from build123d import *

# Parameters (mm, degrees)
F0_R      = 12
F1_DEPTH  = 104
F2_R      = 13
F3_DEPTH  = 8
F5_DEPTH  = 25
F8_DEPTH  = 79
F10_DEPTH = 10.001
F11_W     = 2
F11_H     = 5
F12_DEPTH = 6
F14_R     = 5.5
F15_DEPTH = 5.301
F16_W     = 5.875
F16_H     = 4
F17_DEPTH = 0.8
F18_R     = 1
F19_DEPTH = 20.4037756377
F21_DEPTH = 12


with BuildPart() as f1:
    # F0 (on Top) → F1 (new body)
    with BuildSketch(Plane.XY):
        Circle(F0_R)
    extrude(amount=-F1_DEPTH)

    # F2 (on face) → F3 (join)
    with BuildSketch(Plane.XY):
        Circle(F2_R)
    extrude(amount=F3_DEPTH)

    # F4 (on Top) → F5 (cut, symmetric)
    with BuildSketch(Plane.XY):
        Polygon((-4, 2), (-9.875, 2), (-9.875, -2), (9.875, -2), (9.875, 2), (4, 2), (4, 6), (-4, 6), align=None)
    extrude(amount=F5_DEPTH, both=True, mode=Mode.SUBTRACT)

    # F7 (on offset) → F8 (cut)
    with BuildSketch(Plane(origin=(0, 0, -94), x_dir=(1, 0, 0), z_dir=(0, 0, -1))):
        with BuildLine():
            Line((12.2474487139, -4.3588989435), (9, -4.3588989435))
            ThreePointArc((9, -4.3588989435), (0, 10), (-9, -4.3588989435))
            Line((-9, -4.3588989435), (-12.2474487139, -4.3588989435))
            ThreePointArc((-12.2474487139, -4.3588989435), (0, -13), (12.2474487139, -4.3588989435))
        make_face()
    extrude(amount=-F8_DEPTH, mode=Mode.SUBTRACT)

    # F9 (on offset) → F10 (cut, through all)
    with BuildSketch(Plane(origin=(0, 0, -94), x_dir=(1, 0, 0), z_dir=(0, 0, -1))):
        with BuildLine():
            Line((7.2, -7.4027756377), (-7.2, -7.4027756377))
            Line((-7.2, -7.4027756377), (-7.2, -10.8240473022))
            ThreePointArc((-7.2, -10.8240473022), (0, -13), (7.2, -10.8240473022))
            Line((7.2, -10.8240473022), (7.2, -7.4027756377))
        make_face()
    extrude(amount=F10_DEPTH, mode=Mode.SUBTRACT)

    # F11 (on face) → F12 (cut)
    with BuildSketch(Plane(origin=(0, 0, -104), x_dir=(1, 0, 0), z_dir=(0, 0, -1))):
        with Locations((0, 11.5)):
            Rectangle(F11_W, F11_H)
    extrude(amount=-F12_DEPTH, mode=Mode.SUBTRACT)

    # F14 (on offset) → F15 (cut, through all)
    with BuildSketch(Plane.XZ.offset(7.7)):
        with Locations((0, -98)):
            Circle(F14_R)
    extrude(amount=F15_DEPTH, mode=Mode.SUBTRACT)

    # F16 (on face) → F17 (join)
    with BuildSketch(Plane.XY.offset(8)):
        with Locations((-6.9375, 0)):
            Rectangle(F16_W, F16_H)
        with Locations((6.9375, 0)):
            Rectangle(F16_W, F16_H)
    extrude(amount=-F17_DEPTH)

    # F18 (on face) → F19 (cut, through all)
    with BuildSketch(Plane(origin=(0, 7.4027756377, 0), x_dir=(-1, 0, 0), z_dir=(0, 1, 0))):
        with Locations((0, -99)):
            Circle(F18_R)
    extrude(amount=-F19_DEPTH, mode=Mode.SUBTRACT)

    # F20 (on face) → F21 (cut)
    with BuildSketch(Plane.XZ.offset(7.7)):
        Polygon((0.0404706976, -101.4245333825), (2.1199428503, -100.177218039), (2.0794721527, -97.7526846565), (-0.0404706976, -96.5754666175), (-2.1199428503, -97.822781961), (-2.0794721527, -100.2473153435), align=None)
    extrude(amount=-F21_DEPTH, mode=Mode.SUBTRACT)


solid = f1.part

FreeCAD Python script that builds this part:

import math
import FreeCAD as App
import Part
import Sketcher

V = App.Vector
Q = App.Units.Quantity

doc = App.newDocument("Part")
params = doc.addObject("Spreadsheet::Sheet", "Params")
for row, (alias, value) in enumerate([
    ("sketch1_diameter", "24 mm"),
    ("pad1_length", "104 mm"),
    ("sketch2_diameter", "26 mm"),
    ("pad2_length", "8 mm"),
    ("sketch3_width", "8 mm"),
    ("sketch3_height", "4 mm"),
    ("sketch3_width2", "19.75 mm"),
    ("pocket1_length", "50 mm"),
    ("sketch4_radius", "10 mm"),
    ("sketch4_radius2", "13 mm"),
    ("pocket2_length", "79 mm"),
    ("sketch5_radius", "13 mm"),
    ("sketch5_width", "14.4 mm"),
    ("sketch6_width", "2 mm"),
    ("sketch6_height", "5 mm"),
    ("pocket4_length", "6 mm"),
    ("sketch7_diameter", "11 mm"),
    ("sketch8_height", "4 mm"),
    ("pad3_length", "0.8 mm"),
    ("sketch9_diameter", "2 mm"),
    ("pocket7_length", "12 mm"),
], start=1):
    params.set(f"A{row}", alias)
    params.set(f"B{row}", "=" + value)
    params.setAlias(f"B{row}", alias)

body = doc.addObject("PartDesign::Body", "Body")

# Sketch on XY plane
sketch1 = body.newObject("Sketcher::SketchObject", "Sketch")
sketch1.AttachmentSupport = (doc.getObject("XY_Plane"), [""])
sketch1.MapMode = "FlatFace"
sketch1.addGeometry(Part.Circle(V(0, 0, 0), V(0, 0, 1), 12), False)
sketch1.addConstraint([
    Sketcher.Constraint("Coincident", 0, 3, -1, 1),
    Sketcher.Constraint("Diameter", 0, Q("24 mm")),
])
sketch1.setExpression("Constraints[1]", "Params.sketch1_diameter")
pad1 = body.newObject("PartDesign::Pad", "Pad")
pad1.Profile = sketch1
pad1.setExpression("Length", "Params.pad1_length")
pad1.Reversed = True

# Sketch on XY plane
sketch2 = body.newObject("Sketcher::SketchObject", "Sketch001")
sketch2.AttachmentSupport = (doc.getObject("XY_Plane"), [""])
sketch2.MapMode = "FlatFace"
sketch2.addGeometry(Part.Circle(V(0, 0, 0), V(0, 0, 1), 13), False)
sketch2.addConstraint([
    Sketcher.Constraint("Coincident", 0, 3, -1, 1),
    Sketcher.Constraint("Diameter", 0, Q("26 mm")),
])
sketch2.setExpression("Constraints[1]", "Params.sketch2_diameter")
pad2 = body.newObject("PartDesign::Pad", "Pad001")
pad2.Profile = sketch2
pad2.setExpression("Length", "Params.pad2_length")

# Sketch on XY plane
sketch3 = body.newObject("Sketcher::SketchObject", "Sketch002")
sketch3.AttachmentSupport = (doc.getObject("XY_Plane"), [""])
sketch3.MapMode = "FlatFace"
sketch3.addGeometry([
    Part.LineSegment(V(-4, 2, 0), V(-9.9, 2, 0)),  # 0
    Part.LineSegment(V(-9.9, 2, 0), V(-9.9, -2, 0)),  # 1
    Part.LineSegment(V(-9.9, -2, 0), V(9.9, -2, 0)),  # 2
    Part.LineSegment(V(9.9, -2, 0), V(9.9, 2, 0)),  # 3
    Part.LineSegment(V(9.9, 2, 0), V(4, 2, 0)),  # 4
    Part.LineSegment(V(4, 2, 0), V(4, 6, 0)),  # 5
    Part.LineSegment(V(4, 6, 0), V(-4, 6, 0)),  # 6
    Part.LineSegment(V(-4, 6, 0), V(-4, 2, 0)),  # 7
], False)
sketch3.addConstraint([
    Sketcher.Constraint("Coincident", 0, 2, 1, 1),
    Sketcher.Constraint("Coincident", 1, 2, 2, 1),
    Sketcher.Constraint("Coincident", 2, 2, 3, 1),
    Sketcher.Constraint("Coincident", 3, 2, 4, 1),
    Sketcher.Constraint("Coincident", 4, 2, 5, 1),
    Sketcher.Constraint("Coincident", 5, 2, 6, 1),
    Sketcher.Constraint("Coincident", 6, 2, 7, 1),
    Sketcher.Constraint("Coincident", 7, 2, 0, 1),
    Sketcher.Constraint("Horizontal", 0),
    Sketcher.Constraint("Vertical", 1),
    Sketcher.Constraint("Horizontal", 2),
    Sketcher.Constraint("Vertical", 3),
    Sketcher.Constraint("Horizontal", 4),
    Sketcher.Constraint("Vertical", 5),
    Sketcher.Constraint("Horizontal", 6),
    Sketcher.Constraint("Vertical", 7),
    Sketcher.Constraint("Symmetric", 0, 2, 2, 2, -1, 1),
    Sketcher.Constraint("Symmetric", 4, 2, 7, 2, -2),
    Sketcher.Constraint("Equal", 3, 5),
    Sketcher.Constraint("DistanceX", 6, 2, 6, 1, Q("8 mm")),
    Sketcher.Constraint("DistanceY", 1, 2, 1, 1, Q("4 mm")),
    Sketcher.Constraint("DistanceX", 2, 1, 2, 2, Q("19.75 mm")),
])
sketch3.setExpression("Constraints[19]", "Params.sketch3_width")
sketch3.setExpression("Constraints[20]", "Params.sketch3_height")
sketch3.setExpression("Constraints[21]", "Params.sketch3_width2")
pocket1 = body.newObject("PartDesign::Pocket", "Pocket")
pocket1.Profile = sketch3
pocket1.setExpression("Length", "Params.pocket1_length")
pocket1.Midplane = True

# Sketch on XY plane
sketch4 = body.newObject("Sketcher::SketchObject", "Sketch003")
sketch4.AttachmentSupport = (doc.getObject("XY_Plane"), [""])
sketch4.MapMode = "FlatFace"
sketch4.AttachmentOffset = App.Placement(V(0, 0, -94), App.Rotation())
sketch4.addGeometry([
    Part.LineSegment(V(12.2, 4.4, 0), V(9, 4.4, 0)),
    Part.ArcOfCircle(Part.Circle(V(0, 0, 0), V(0, 0, 1), 10), math.radians(154), math.radians(386)),
    Part.LineSegment(V(-9, 4.4, 0), V(-12.2, 4.4, 0)),
    Part.ArcOfCircle(Part.Circle(V(0, 0, 0), V(0, 0, 1), 13), math.radians(20), math.radians(160)),
], False)
sketch4.addConstraint([
    Sketcher.Constraint("Coincident", 0, 2, 1, 2),
    Sketcher.Constraint("Coincident", 1, 1, 2, 1),
    Sketcher.Constraint("Coincident", 2, 2, 3, 2),
    Sketcher.Constraint("Coincident", 3, 1, 0, 1),
    Sketcher.Constraint("Horizontal", 0),
    Sketcher.Constraint("Horizontal", 2),
    Sketcher.Constraint("Coincident", 1, 3, -1, 1),
    Sketcher.Constraint("Coincident", 3, 3, -1, 1),
    Sketcher.Constraint("Horizontal", 0, 2, 1, 1),
    Sketcher.Constraint("Radius", 1, Q("10 mm")),
    Sketcher.Constraint("Radius", 3, Q("13 mm")),
    Sketcher.Constraint("DistanceX", -1, 1, 0, 2, Q("9 mm")),
])
sketch4.setExpression("Constraints[9]", "Params.sketch4_radius")
sketch4.setExpression("Constraints[10]", "Params.sketch4_radius2")
pocket2 = body.newObject("PartDesign::Pocket", "Pocket001")
pocket2.Profile = sketch4
pocket2.setExpression("Length", "Params.pocket2_length")
pocket2.Reversed = True

# Sketch on XY plane
sketch5 = body.newObject("Sketcher::SketchObject", "Sketch004")
sketch5.AttachmentSupport = (doc.getObject("XY_Plane"), [""])
sketch5.MapMode = "FlatFace"
sketch5.AttachmentOffset = App.Placement(V(0, 0, -94), App.Rotation())
sketch5.addGeometry([
    Part.LineSegment(V(7.2, 7.4, 0), V(-7.2, 7.4, 0)),
    Part.LineSegment(V(-7.2, 7.4, 0), V(-7.2, 10.8, 0)),
    Part.ArcOfCircle(Part.Circle(V(0, 0, 0), V(0, 0, 1), 13), math.radians(56), math.radians(124)),
    Part.LineSegment(V(7.2, 10.8, 0), V(7.2, 7.4, 0)),
], False)
sketch5.addConstraint([
    Sketcher.Constraint("Coincident", 0, 2, 1, 1),
    Sketcher.Constraint("Coincident", 1, 2, 2, 2),
    Sketcher.Constraint("Coincident", 2, 1, 3, 1),
    Sketcher.Constraint("Coincident", 3, 2, 0, 1),
    Sketcher.Constraint("Horizontal", 0),
    Sketcher.Constraint("Vertical", 1),
    Sketcher.Constraint("Vertical", 3),
    Sketcher.Constraint("Coincident", 2, 3, -1, 1),
    Sketcher.Constraint("Horizontal", 1, 2, 2, 1),
    Sketcher.Constraint("Radius", 2, Q("13 mm")),
    Sketcher.Constraint("DistanceX", 0, 2, 0, 1, Q("14.4 mm")),
    Sketcher.Constraint("DistanceY", 1, 1, 1, 2, Q("3.421272 mm")),
])
sketch5.setExpression("Constraints[9]", "Params.sketch5_radius")
sketch5.setExpression("Constraints[10]", "Params.sketch5_width")
pocket3 = body.newObject("PartDesign::Pocket", "Pocket002")
pocket3.Profile = sketch5
pocket3.Type = "ThroughAll"

# Sketch on XY plane
sketch6 = body.newObject("Sketcher::SketchObject", "Sketch005")
sketch6.AttachmentSupport = (doc.getObject("XY_Plane"), [""])
sketch6.MapMode = "FlatFace"
sketch6.AttachmentOffset = App.Placement(V(0, 0, -104), App.Rotation())
sketch6.addGeometry([
    Part.LineSegment(V(-1, -14, 0), V(-1, -9, 0)),
    Part.LineSegment(V(-1, -9, 0), V(1, -9, 0)),
    Part.LineSegment(V(1, -9, 0), V(1, -14, 0)),
    Part.LineSegment(V(1, -14, 0), V(-1, -14, 0)),
], False)
sketch6.addConstraint([
    Sketcher.Constraint("Coincident", 0, 2, 1, 1),
    Sketcher.Constraint("Coincident", 1, 2, 2, 1),
    Sketcher.Constraint("Coincident", 2, 2, 3, 1),
    Sketcher.Constraint("Coincident", 3, 2, 0, 1),
    Sketcher.Constraint("Vertical", 0),
    Sketcher.Constraint("Horizontal", 1),
    Sketcher.Constraint("Vertical", 2),
    Sketcher.Constraint("Horizontal", 3),
    Sketcher.Constraint("DistanceX", 1, 1, 1, 2, Q("2 mm")),
    Sketcher.Constraint("DistanceY", 0, 1, 0, 2, Q("5 mm")),
    Sketcher.Constraint("DistanceX", 0, 2, -1, 1, Q("1 mm")),
    Sketcher.Constraint("DistanceY", 0, 2, -1, 1, Q("9 mm")),
])
sketch6.setExpression("Constraints[8]", "Params.sketch6_width")
sketch6.setExpression("Constraints[9]", "Params.sketch6_height")
pocket4 = body.newObject("PartDesign::Pocket", "Pocket003")
pocket4.Profile = sketch6
pocket4.setExpression("Length", "Params.pocket4_length")
pocket4.Reversed = True

# Sketch on XZ plane
sketch7 = body.newObject("Sketcher::SketchObject", "Sketch006")
sketch7.AttachmentSupport = (doc.getObject("XZ_Plane"), [""])
sketch7.MapMode = "FlatFace"
sketch7.AttachmentOffset = App.Placement(V(0, 0, 7.7), App.Rotation())
sketch7.addGeometry(Part.Circle(V(0, -98, 0), V(0, 0, 1), 6), False)
sketch7.addConstraint([
    Sketcher.Constraint("PointOnObject", 0, 3, -2),
    Sketcher.Constraint("Diameter", 0, Q("11 mm")),
    Sketcher.Constraint("DistanceY", 0, 3, -1, 1, Q("98 mm")),
])
sketch7.setExpression("Constraints[1]", "Params.sketch7_diameter")
pocket5 = body.newObject("PartDesign::Pocket", "Pocket004")
pocket5.Profile = sketch7
pocket5.Type = "ThroughAll"
pocket5.Reversed = True

# Sketch on XY plane
sketch8 = body.newObject("Sketcher::SketchObject", "Sketch007")
sketch8.AttachmentSupport = (doc.getObject("XY_Plane"), [""])
sketch8.MapMode = "FlatFace"
sketch8.AttachmentOffset = App.Placement(V(0, 0, 8), App.Rotation())
sketch8.addGeometry([
    Part.LineSegment(V(-9.9, 2, 0), V(-9.9, -2, 0)),  # 0
    Part.LineSegment(V(-9.9, -2, 0), V(-4, -2, 0)),  # 1
    Part.LineSegment(V(-4, -2, 0), V(-4, 2, 0)),  # 2
    Part.LineSegment(V(-4, 2, 0), V(-9.9, 2, 0)),  # 3
    Part.LineSegment(V(4, 2, 0), V(4, -2, 0)),  # 4
    Part.LineSegment(V(4, -2, 0), V(9.9, -2, 0)),  # 5
    Part.LineSegment(V(9.9, -2, 0), V(9.9, 2, 0)),  # 6
    Part.LineSegment(V(9.9, 2, 0), V(4, 2, 0)),  # 7
], False)
sketch8.addConstraint([
    Sketcher.Constraint("Coincident", 0, 2, 1, 1),
    Sketcher.Constraint("Coincident", 1, 2, 2, 1),
    Sketcher.Constraint("Coincident", 2, 2, 3, 1),
    Sketcher.Constraint("Coincident", 3, 2, 0, 1),
    Sketcher.Constraint("Coincident", 4, 2, 5, 1),
    Sketcher.Constraint("Coincident", 5, 2, 6, 1),
    Sketcher.Constraint("Coincident", 6, 2, 7, 1),
    Sketcher.Constraint("Coincident", 7, 2, 4, 1),
    Sketcher.Constraint("Vertical", 0),
    Sketcher.Constraint("Horizontal", 1),
    Sketcher.Constraint("Vertical", 2),
    Sketcher.Constraint("Horizontal", 3),
    Sketcher.Constraint("Vertical", 4),
    Sketcher.Constraint("Horizontal", 5),
    Sketcher.Constraint("Vertical", 6),
    Sketcher.Constraint("Horizontal", 7),
    Sketcher.Constraint("Symmetric", 2, 2, 4, 2, -1, 1),
    Sketcher.Constraint("Symmetric", 0, 2, 6, 2, -1, 1),
    Sketcher.Constraint("Horizontal", 1, 2, 4, 2),
    Sketcher.Constraint("DistanceY", 0, 2, 0, 1, Q("4 mm")),
    Sketcher.Constraint("DistanceX", 1, 2, -1, 1, Q("4 mm")),
    Sketcher.Constraint("DistanceX", 1, 1, 1, 2, Q("5.875 mm")),
])
sketch8.setExpression("Constraints[19]", "Params.sketch8_height")
pad3 = body.newObject("PartDesign::Pad", "Pad002")
pad3.Profile = sketch8
pad3.setExpression("Length", "Params.pad3_length")
pad3.Reversed = True

# Sketch on XZ plane
sketch9 = body.newObject("Sketcher::SketchObject", "Sketch008")
sketch9.AttachmentSupport = (doc.getObject("XZ_Plane"), [""])
sketch9.MapMode = "FlatFace"
sketch9.AttachmentOffset = App.Placement(V(0, 0, -7.402776), App.Rotation())
sketch9.addGeometry(Part.Circle(V(0, -99, 0), V(0, 0, 1), 1), False)
sketch9.addConstraint([
    Sketcher.Constraint("PointOnObject", 0, 3, -2),
    Sketcher.Constraint("Diameter", 0, Q("2 mm")),
    Sketcher.Constraint("DistanceY", 0, 3, -1, 1, Q("99 mm")),
])
sketch9.setExpression("Constraints[1]", "Params.sketch9_diameter")
pocket6 = body.newObject("PartDesign::Pocket", "Pocket005")
pocket6.Profile = sketch9
pocket6.Type = "ThroughAll"
pocket6.Reversed = True

# Sketch on XZ plane
sketch10 = body.newObject("Sketcher::SketchObject", "Sketch009")
sketch10.AttachmentSupport = (doc.getObject("XZ_Plane"), [""])
sketch10.MapMode = "FlatFace"
sketch10.AttachmentOffset = App.Placement(V(0, 0, 7.7), App.Rotation())
sketch10.addGeometry([
    Part.LineSegment(V(0, -101.4, 0), V(2.1, -100.2, 0)),  # 0
    Part.LineSegment(V(2.1, -100.2, 0), V(2.1, -97.8, 0)),  # 1
    Part.LineSegment(V(2.1, -97.8, 0), V(0, -96.6, 0)),  # 2
    Part.LineSegment(V(0, -96.6, 0), V(-2.1, -97.8, 0)),  # 3
    Part.LineSegment(V(-2.1, -97.8, 0), V(-2.1, -100.2, 0)),  # 4
    Part.LineSegment(V(-2.1, -100.2, 0), V(0, -101.4, 0)),  # 5
], False)
sketch10.addConstraint([
    Sketcher.Constraint("Coincident", 0, 2, 1, 1),
    Sketcher.Constraint("Coincident", 1, 2, 2, 1),
    Sketcher.Constraint("Coincident", 2, 2, 3, 1),
    Sketcher.Constraint("Coincident", 3, 2, 4, 1),
    Sketcher.Constraint("Coincident", 4, 2, 5, 1),
    Sketcher.Constraint("Coincident", 5, 2, 0, 1),
    Sketcher.Constraint("Parallel", 0, 3),
    Sketcher.Constraint("Parallel", 1, 4),
    Sketcher.Constraint("Parallel", 2, 5),
    Sketcher.Constraint("Equal", 0, 1),
    Sketcher.Constraint("Equal", 1, 2),
    Sketcher.Constraint("Equal", 2, 3),
    Sketcher.Constraint("DistanceX", 4, 2, 2, 2, Q("2.039001 mm")),
    Sketcher.Constraint("Distance", 0, Q("2.424871 mm")),
    Sketcher.Constraint("DistanceY", 0, 2, -1, 1, Q("100.177218 mm")),
    Sketcher.Constraint("DistanceX", 2, 2, -1, 1, Q("0.040471 mm")),
    Sketcher.Constraint("DistanceY", 3, 2, -1, 1, Q("97.822782 mm")),
    Sketcher.Constraint("DistanceX", -1, 1, 5, 2, Q("0.040471 mm")),
])
pocket7 = body.newObject("PartDesign::Pocket", "Pocket006")
pocket7.Profile = sketch10
pocket7.setExpression("Length", "Params.pocket7_length")

doc.recompute()
